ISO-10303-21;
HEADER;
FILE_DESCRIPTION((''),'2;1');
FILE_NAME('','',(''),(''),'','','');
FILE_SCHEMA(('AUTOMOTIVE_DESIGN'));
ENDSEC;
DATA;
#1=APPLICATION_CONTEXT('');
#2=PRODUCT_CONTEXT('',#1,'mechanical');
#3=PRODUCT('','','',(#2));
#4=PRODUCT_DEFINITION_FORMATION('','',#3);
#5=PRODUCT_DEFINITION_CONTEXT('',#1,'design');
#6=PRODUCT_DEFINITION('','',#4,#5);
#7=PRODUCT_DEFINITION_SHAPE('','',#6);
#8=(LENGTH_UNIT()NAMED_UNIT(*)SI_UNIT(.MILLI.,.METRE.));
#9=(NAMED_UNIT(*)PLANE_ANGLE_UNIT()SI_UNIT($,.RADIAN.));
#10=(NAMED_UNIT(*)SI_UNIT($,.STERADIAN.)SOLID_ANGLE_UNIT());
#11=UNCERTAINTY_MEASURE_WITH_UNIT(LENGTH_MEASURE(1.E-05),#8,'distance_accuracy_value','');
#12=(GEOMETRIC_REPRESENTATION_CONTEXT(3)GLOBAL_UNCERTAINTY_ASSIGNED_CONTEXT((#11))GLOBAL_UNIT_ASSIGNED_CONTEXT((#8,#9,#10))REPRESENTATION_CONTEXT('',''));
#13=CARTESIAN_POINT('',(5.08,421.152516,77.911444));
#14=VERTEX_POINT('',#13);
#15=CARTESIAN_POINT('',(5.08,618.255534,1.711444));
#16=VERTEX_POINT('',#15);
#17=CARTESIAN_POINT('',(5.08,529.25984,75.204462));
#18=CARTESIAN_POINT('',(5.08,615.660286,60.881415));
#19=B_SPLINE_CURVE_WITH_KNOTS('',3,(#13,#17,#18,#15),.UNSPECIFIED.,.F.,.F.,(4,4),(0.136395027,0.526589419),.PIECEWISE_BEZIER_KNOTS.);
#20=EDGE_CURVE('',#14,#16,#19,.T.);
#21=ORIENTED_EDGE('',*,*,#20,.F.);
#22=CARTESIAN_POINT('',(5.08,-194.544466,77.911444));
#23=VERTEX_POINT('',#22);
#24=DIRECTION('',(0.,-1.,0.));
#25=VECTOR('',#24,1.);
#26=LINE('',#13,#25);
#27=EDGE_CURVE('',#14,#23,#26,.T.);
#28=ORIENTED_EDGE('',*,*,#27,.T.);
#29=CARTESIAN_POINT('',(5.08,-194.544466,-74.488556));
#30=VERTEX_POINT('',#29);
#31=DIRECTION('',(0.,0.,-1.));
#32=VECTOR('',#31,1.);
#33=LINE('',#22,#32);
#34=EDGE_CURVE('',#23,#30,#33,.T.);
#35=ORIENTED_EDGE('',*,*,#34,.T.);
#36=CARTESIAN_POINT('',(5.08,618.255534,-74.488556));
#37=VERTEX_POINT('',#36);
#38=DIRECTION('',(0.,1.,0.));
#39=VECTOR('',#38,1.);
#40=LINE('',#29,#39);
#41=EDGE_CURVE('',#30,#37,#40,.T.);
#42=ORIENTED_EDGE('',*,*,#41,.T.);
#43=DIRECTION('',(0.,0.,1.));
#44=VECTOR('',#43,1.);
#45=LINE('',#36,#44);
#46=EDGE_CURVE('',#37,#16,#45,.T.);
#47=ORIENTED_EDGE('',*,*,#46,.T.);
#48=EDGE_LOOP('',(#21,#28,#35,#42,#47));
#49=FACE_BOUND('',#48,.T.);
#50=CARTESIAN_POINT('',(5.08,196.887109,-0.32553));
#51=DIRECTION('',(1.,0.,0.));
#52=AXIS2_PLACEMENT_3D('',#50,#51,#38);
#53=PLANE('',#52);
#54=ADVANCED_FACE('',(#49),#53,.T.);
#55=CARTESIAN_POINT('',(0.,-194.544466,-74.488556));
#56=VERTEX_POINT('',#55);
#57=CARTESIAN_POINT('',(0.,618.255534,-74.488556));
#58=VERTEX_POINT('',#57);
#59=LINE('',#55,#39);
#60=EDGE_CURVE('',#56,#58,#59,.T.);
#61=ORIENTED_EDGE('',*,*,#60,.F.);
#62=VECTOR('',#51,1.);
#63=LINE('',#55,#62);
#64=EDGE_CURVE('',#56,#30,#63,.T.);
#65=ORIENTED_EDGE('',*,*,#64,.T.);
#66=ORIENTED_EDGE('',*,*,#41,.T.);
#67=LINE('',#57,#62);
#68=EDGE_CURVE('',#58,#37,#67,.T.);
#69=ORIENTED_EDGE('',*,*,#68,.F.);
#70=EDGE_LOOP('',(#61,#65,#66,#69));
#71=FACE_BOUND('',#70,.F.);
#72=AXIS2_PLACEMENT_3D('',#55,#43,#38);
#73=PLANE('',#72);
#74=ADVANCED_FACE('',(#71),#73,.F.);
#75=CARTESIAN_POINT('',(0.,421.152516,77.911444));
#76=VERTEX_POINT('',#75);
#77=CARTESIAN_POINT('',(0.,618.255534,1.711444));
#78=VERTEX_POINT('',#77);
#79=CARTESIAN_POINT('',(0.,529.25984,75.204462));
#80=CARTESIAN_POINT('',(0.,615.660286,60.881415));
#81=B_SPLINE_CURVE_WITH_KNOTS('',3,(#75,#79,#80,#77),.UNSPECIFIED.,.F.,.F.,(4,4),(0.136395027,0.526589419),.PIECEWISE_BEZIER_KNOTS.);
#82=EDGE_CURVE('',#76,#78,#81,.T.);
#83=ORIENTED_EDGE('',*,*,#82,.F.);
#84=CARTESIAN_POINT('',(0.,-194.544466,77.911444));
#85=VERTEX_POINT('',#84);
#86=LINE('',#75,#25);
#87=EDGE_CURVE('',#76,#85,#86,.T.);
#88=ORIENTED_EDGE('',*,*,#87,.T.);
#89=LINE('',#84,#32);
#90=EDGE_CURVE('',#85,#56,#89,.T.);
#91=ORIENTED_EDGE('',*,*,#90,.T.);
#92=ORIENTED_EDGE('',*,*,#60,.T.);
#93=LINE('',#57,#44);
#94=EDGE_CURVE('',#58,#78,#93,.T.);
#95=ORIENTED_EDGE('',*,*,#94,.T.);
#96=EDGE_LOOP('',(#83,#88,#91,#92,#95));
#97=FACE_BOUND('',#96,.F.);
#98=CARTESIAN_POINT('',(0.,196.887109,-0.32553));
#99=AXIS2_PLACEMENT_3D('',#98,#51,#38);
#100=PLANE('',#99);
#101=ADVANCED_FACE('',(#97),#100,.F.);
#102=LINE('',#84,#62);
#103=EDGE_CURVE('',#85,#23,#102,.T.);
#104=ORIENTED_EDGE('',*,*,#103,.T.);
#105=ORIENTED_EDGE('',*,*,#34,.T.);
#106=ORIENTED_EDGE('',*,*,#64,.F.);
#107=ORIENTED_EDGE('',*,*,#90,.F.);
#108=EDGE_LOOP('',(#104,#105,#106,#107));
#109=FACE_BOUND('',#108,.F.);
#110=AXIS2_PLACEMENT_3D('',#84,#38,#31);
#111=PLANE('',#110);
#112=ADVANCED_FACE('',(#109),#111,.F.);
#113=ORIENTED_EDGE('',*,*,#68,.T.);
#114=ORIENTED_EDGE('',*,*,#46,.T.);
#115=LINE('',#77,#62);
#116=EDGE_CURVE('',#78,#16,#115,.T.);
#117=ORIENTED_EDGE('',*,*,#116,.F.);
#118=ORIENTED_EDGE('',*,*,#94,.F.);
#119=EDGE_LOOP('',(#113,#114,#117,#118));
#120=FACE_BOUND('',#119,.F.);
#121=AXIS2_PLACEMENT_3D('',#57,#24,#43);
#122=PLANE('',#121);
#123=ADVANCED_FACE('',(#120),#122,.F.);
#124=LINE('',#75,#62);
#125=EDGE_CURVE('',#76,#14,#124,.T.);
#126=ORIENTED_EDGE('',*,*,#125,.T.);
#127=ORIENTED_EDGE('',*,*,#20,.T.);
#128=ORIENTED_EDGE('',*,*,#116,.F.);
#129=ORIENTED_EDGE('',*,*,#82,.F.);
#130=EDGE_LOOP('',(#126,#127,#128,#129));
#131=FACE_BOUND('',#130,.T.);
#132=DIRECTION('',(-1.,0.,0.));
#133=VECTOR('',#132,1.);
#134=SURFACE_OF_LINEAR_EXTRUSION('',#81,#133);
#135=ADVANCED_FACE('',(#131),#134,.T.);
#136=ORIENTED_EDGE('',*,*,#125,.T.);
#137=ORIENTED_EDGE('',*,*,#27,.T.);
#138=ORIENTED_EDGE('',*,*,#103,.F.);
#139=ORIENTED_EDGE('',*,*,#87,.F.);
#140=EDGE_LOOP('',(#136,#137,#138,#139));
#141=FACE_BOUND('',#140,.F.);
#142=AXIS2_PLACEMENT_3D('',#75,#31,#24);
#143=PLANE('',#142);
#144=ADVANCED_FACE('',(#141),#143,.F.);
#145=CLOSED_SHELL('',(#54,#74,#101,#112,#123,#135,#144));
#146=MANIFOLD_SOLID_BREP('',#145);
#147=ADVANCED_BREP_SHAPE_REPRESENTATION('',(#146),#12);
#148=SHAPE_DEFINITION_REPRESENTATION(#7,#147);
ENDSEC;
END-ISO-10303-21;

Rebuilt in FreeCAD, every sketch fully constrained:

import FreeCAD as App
import Part
import Sketcher

V = App.Vector
Q = App.Units.Quantity

doc = App.newDocument("Part")
body = doc.addObject("PartDesign::Body", "Body")

sketch1 = body.newObject("Sketcher::SketchObject", "Sketch")
sketch1.AttachmentSupport = (doc.getObject("YZ_Plane"), [""])
sketch1.MapMode = "FlatFace"
sketch1.addGeometry(Part.LineSegment(V(-194.544466, 77.911444, 0), V(-194.544466, -74.488556, 0)), False)
sketch1.addGeometry(Part.LineSegment(V(-194.544466, -74.488556, 0), V(618.255534, -74.488556, 0)), False)
sketch1.addGeometry(Part.LineSegment(V(618.255534, -74.488556, 0), V(618.255534, 1.711444, 0)), False)
sketch1.addGeometry(Part.BSplineCurve([V(421.152516, 77.911444, 0), V(529.25984, 75.204462, 0), V(615.660286, 60.881415, 0), V(618.255534, 1.711444, 0)], [4, 4], [0.136395027, 0.526589419], False, 3, [1, 1, 1, 1], False), False)
sketch1.addGeometry(Part.LineSegment(V(421.152516, 77.911444, 0), V(-194.544466, 77.911444, 0)), False)
sketch1.addConstraint(Sketcher.Constraint("Block", 3))
sketch1.addConstraint(Sketcher.Constraint("Coincident", 0, 2, 1, 1))
sketch1.addConstraint(Sketcher.Constraint("Coincident", 1, 2, 2, 1))
sketch1.addConstraint(Sketcher.Constraint("Coincident", 2, 2, 3, 2))
sketch1.addConstraint(Sketcher.Constraint("Coincident", 3, 1, 4, 1))
sketch1.addConstraint(Sketcher.Constraint("Coincident", 4, 2, 0, 1))
sketch1.addConstraint(Sketcher.Constraint("Vertical", 0))
sketch1.addConstraint(Sketcher.Constraint("Horizontal", 1))
sketch1.addConstraint(Sketcher.Constraint("Vertical", 2))
sketch1.addConstraint(Sketcher.Constraint("Horizontal", 4))
sketch1.addConstraint(Sketcher.Constraint("DistanceX", 1, 1, 1, 2, Q("32 in")))
sketch1.addConstraint(Sketcher.Constraint("DistanceY", 0, 2, 0, 1, Q("6 in")))
pad1 = body.newObject("PartDesign::Pad", "Pad")
pad1.Profile = sketch1
pad1.Length = Q("0.2 in")

doc.recompute()
